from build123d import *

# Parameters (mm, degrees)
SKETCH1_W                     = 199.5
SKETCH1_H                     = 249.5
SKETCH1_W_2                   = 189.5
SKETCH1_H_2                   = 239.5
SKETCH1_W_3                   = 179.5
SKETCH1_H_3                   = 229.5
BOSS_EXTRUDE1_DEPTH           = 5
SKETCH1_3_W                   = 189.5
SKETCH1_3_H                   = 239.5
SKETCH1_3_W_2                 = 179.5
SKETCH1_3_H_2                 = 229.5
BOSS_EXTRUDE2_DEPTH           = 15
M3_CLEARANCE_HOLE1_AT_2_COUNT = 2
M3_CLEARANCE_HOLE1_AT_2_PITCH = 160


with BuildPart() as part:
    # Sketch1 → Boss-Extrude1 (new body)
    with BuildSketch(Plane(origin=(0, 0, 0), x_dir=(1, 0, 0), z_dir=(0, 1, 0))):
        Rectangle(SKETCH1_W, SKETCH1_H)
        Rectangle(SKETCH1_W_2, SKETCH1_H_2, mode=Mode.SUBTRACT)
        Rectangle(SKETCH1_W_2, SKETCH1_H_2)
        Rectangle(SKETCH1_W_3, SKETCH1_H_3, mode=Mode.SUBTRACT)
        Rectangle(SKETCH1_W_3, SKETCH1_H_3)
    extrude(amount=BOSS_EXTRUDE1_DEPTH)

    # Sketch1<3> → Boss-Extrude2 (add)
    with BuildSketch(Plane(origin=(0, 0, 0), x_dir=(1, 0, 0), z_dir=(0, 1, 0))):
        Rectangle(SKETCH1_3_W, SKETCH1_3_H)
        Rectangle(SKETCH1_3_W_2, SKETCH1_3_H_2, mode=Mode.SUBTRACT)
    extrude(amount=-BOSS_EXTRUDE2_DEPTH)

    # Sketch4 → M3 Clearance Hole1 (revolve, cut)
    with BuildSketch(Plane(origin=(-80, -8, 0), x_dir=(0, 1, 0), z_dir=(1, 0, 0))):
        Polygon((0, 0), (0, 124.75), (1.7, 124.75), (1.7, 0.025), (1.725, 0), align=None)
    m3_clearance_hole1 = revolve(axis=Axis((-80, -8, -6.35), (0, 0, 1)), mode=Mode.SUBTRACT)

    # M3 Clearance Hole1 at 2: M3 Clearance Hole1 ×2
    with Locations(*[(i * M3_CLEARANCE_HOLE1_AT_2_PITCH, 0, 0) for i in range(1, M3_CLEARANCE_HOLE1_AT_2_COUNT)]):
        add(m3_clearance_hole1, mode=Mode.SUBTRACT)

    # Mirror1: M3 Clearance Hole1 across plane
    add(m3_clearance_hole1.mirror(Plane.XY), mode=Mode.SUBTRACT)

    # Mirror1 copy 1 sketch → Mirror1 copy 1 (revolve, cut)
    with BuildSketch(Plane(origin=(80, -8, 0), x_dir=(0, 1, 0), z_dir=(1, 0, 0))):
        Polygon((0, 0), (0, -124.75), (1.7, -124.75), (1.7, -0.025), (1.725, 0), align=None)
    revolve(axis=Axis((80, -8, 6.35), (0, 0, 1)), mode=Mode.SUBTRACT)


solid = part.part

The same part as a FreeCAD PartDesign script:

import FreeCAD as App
import Part
import Sketcher
Q = App.Units.Quantity


def add_polygon(sketch, points):
    """Adds a closed chain of lines whose ends are joined by coincident constraints."""
    first, n = sketch.GeometryCount, len(points)
    for a, b in zip(points, points[1:] + points[:1]):
        sketch.addGeometry(Part.LineSegment(App.Vector(*a, 0), App.Vector(*b, 0)), False)
    for i in range(n):
        sketch.addConstraint(Sketcher.Constraint("Coincident", first + i, 2, first + (i + 1) % n, 1))

doc = App.newDocument("Part")
params = doc.addObject("Spreadsheet::Sheet", "Params")
for row, (alias, value) in enumerate([
    ("sketch1_width", "199.5 mm"),
    ("sketch1_height", "249.5 mm"),
    ("pad1_length", "5 mm"),
    ("sketch2_width", "189.5 mm"),
    ("sketch2_width2", "179.5 mm"),
    ("sketch2_height", "239.5 mm"),
    ("sketch2_height2", "229.5 mm"),
    ("pad2_length", "15 mm"),
    ("sketch3_width", "1.7 mm"),
    ("sketch3_height", "124.75 mm"),
    ("groove_angle", "360 deg"),
    ("linearpattern_pitch", "160 mm"),
    ("sketch4_width", "1.7 mm"),
    ("sketch4_height", "124.75 mm"),
    ("groove2_angle", "360 deg"),
], start=1):
    params.set(f"A{row}", alias)
    params.set(f"B{row}", "=" + value)
    params.setAlias(f"B{row}", alias)

body = doc.addObject("PartDesign::Body", "Body")

# Sketch on XZ plane
sketch1 = body.newObject("Sketcher::SketchObject", "Sketch")
sketch1.AttachmentSupport = (doc.getObject("XZ_Plane"), [""])
sketch1.MapMode = "FlatFace"
add_polygon(sketch1, [(-100, -125), (-100, 125), (100, 125), (100, -125)])  # lines 0-3
sketch1.addConstraint(Sketcher.Constraint("Vertical", 0))
sketch1.addConstraint(Sketcher.Constraint("Horizontal", 1))
sketch1.addConstraint(Sketcher.Constraint("Vertical", 2))
sketch1.addConstraint(Sketcher.Constraint("Horizontal", 3))
sketch1.addConstraint(Sketcher.Constraint("Symmetric", 0, 2, 2, 2, -1, 1))
sketch1.addConstraint(Sketcher.Constraint("DistanceX", 1, 1, 1, 2, Q("199.5 mm")))
sketch1.addConstraint(Sketcher.Constraint("DistanceY", 0, 1, 0, 2, Q("249.5 mm")))
sketch1.setExpression("Constraints[9]", "Params.sketch1_width")
sketch1.setExpression("Constraints[10]", "Params.sketch1_height")
pad1 = body.newObject("PartDesign::Pad", "Pad")
pad1.Profile = sketch1
pad1.setExpression("Length", "Params.pad1_length")
pad1.Reversed = True

# Sketch on XZ plane
sketch2 = body.newObject("Sketcher::SketchObject", "Sketch001")
sketch2.AttachmentSupport = (doc.getObject("XZ_Plane"), [""])
sketch2.MapMode = "FlatFace"
add_polygon(sketch2, [(-95, -120), (-95, 120), (95, 120), (95, -120)])  # lines 0-3
add_polygon(sketch2, [(90, 115), (-90, 115), (-90, -115), (90, -115)])  # lines 4-7
sketch2.addConstraint(Sketcher.Constraint("Vertical", 0))
sketch2.addConstraint(Sketcher.Constraint("Horizontal", 1))
sketch2.addConstraint(Sketcher.Constraint("Vertical", 2))
sketch2.addConstraint(Sketcher.Constraint("Horizontal", 3))
sketch2.addConstraint(Sketcher.Constraint("Horizontal", 4))
sketch2.addConstraint(Sketcher.Constraint("Vertical", 5))
sketch2.addConstraint(Sketcher.Constraint("Horizontal", 6))
sketch2.addConstraint(Sketcher.Constraint("Vertical", 7))
sketch2.addConstraint(Sketcher.Constraint("Symmetric", 0, 2, 2, 2, -1, 1))
sketch2.addConstraint(Sketcher.Constraint("Symmetric", 4, 2, 6, 2, -1, 1))
sketch2.addConstraint(Sketcher.Constraint("DistanceX", 1, 1, 1, 2, Q("189.5 mm")))
sketch2.addConstraint(Sketcher.Constraint("DistanceX", 4, 2, 4, 1, Q("179.5 mm")))
sketch2.addConstraint(Sketcher.Constraint("DistanceY", 0, 1, 0, 2, Q("239.5 mm")))
sketch2.addConstraint(Sketcher.Constraint("DistanceY", 5, 2, 5, 1, Q("229.5 mm")))
sketch2.setExpression("Constraints[18]", "Params.sketch2_width")
sketch2.setExpression("Constraints[19]", "Params.sketch2_width2")
sketch2.setExpression("Constraints[20]", "Params.sketch2_height")
sketch2.setExpression("Constraints[21]", "Params.sketch2_height2")
pad2 = body.newObject("PartDesign::Pad", "Pad001")
pad2.Profile = sketch2
pad2.setExpression("Length", "Params.pad2_length")

# Sketch on YZ plane
sketch3 = body.newObject("Sketcher::SketchObject", "Sketch002")
sketch3.AttachmentSupport = (doc.getObject("YZ_Plane"), [""])
sketch3.MapMode = "FlatFace"
sketch3.AttachmentOffset = App.Placement(App.Vector(0, 0, -80), App.Rotation())
add_polygon(sketch3, [(-8, 124.75), (-8, 0), (-6.275, 0), (-6.3, 0.025), (-6.3, 124.75)])  # lines 0-4
sketch3.addGeometry(Part.LineSegment(App.Vector(-8, 0, 0), App.Vector(-8, 124.75, 0)), True)  # axis
sketch3.addConstraint(Sketcher.Constraint("Vertical", 0))
sketch3.addConstraint(Sketcher.Constraint("Horizontal", 1))
sketch3.addConstraint(Sketcher.Constraint("Vertical", 3))
sketch3.addConstraint(Sketcher.Constraint("Horizontal", 4))
sketch3.addConstraint(Sketcher.Constraint("Vertical", 5))
sketch3.addConstraint(Sketcher.Constraint("Coincident", 5, 1, 0, 2))
sketch3.addConstraint(Sketcher.Constraint("PointOnObject", 0, 2, -1))
sketch3.addConstraint(Sketcher.Constraint("Horizontal", 3, 2, 5, 2))
sketch3.addConstraint(Sketcher.Constraint("Angle", 2, Q("135 deg")))
sketch3.addConstraint(Sketcher.Constraint("DistanceX", 4, 2, 4, 1, Q("1.7 mm")))
sketch3.addConstraint(Sketcher.Constraint("DistanceX", 0, 2, -1, 1, Q("8 mm")))
sketch3.addConstraint(Sketcher.Constraint("DistanceY", 0, 2, 0, 1, Q("124.75 mm")))
sketch3.addConstraint(Sketcher.Constraint("DistanceX", 1, 1, 1, 2, Q("1.725 mm")))
sketch3.setExpression("Constraints[14]", "Params.sketch3_width")
sketch3.setExpression("Constraints[16]", "Params.sketch3_height")
groove = body.newObject("PartDesign::Groove", "Groove")
groove.Profile = sketch3
groove.ReferenceAxis = (sketch3, ["Axis0"])
groove.setExpression("Angle", "Params.groove_angle")
doc.recompute()

linearpattern = body.newObject("PartDesign::LinearPattern", "LinearPattern")
linearpattern.Originals = [groove]
linearpattern.Direction = (doc.getObject("X_Axis"), [""])
linearpattern.Mode = "offset"
linearpattern.setExpression("Offset", "Params.linearpattern_pitch")
linearpattern.Occurrences = 2
body.Tip = linearpattern
doc.recompute()

mirrored = body.newObject("PartDesign::Mirrored", "Mirrored")
mirrored.Originals = [groove]
mirrored.MirrorPlane = (doc.getObject("XY_Plane"), [""])
body.Tip = mirrored

# Sketch on YZ plane
sketch4 = body.newObject("Sketcher::SketchObject", "Sketch003")
sketch4.AttachmentSupport = (doc.getObject("YZ_Plane"), [""])
sketch4.MapMode = "FlatFace"
sketch4.AttachmentOffset = App.Placement(App.Vector(0, 0, 80), App.Rotation())
add_polygon(sketch4, [(-8, 0), (-8, -124.75), (-6.3, -124.75), (-6.3, -0.025), (-6.275, 0)])  # lines 0-4
sketch4.addGeometry(Part.LineSegment(App.Vector(-8, -124.75, 0), App.Vector(-8, 0, 0)), True)  # axis
sketch4.addConstraint(Sketcher.Constraint("Vertical", 0))
sketch4.addConstraint(Sketcher.Constraint("Horizontal", 1))
sketch4.addConstraint(Sketcher.Constraint("Vertical", 2))
sketch4.addConstraint(Sketcher.Constraint("Horizontal", 4))
sketch4.addConstraint(Sketcher.Constraint("Vertical", 5))
sketch4.addConstraint(Sketcher.Constraint("Coincident", 5, 1, 0, 2))
sketch4.addConstraint(Sketcher.Constraint("PointOnObject", 3, 2, -1))
sketch4.addConstraint(Sketcher.Constraint("PointOnObject", 5, 2, -1))
sketch4.addConstraint(Sketcher.Constraint("Angle", 3, Q("45 deg")))
sketch4.addConstraint(Sketcher.Constraint("DistanceX", 1, 1, 1, 2, Q("1.7 mm")))
sketch4.addConstraint(Sketcher.Constraint("DistanceX", 0, 2, -1, 1, Q("8 mm")))
sketch4.addConstraint(Sketcher.Constraint("DistanceY", 0, 2, 0, 1, Q("124.75 mm")))
sketch4.addConstraint(Sketcher.Constraint("DistanceX", 4, 2, 4, 1, Q("1.725 mm")))
sketch4.setExpression("Constraints[14]", "Params.sketch4_width")
sketch4.setExpression("Constraints[16]", "Params.sketch4_height")
groove2 = body.newObject("PartDesign::Groove", "Groove001")
groove2.Profile = sketch4
groove2.ReferenceAxis = (sketch4, ["Axis0"])
groove2.setExpression("Angle", "Params.groove2_angle")

doc.recompute()
